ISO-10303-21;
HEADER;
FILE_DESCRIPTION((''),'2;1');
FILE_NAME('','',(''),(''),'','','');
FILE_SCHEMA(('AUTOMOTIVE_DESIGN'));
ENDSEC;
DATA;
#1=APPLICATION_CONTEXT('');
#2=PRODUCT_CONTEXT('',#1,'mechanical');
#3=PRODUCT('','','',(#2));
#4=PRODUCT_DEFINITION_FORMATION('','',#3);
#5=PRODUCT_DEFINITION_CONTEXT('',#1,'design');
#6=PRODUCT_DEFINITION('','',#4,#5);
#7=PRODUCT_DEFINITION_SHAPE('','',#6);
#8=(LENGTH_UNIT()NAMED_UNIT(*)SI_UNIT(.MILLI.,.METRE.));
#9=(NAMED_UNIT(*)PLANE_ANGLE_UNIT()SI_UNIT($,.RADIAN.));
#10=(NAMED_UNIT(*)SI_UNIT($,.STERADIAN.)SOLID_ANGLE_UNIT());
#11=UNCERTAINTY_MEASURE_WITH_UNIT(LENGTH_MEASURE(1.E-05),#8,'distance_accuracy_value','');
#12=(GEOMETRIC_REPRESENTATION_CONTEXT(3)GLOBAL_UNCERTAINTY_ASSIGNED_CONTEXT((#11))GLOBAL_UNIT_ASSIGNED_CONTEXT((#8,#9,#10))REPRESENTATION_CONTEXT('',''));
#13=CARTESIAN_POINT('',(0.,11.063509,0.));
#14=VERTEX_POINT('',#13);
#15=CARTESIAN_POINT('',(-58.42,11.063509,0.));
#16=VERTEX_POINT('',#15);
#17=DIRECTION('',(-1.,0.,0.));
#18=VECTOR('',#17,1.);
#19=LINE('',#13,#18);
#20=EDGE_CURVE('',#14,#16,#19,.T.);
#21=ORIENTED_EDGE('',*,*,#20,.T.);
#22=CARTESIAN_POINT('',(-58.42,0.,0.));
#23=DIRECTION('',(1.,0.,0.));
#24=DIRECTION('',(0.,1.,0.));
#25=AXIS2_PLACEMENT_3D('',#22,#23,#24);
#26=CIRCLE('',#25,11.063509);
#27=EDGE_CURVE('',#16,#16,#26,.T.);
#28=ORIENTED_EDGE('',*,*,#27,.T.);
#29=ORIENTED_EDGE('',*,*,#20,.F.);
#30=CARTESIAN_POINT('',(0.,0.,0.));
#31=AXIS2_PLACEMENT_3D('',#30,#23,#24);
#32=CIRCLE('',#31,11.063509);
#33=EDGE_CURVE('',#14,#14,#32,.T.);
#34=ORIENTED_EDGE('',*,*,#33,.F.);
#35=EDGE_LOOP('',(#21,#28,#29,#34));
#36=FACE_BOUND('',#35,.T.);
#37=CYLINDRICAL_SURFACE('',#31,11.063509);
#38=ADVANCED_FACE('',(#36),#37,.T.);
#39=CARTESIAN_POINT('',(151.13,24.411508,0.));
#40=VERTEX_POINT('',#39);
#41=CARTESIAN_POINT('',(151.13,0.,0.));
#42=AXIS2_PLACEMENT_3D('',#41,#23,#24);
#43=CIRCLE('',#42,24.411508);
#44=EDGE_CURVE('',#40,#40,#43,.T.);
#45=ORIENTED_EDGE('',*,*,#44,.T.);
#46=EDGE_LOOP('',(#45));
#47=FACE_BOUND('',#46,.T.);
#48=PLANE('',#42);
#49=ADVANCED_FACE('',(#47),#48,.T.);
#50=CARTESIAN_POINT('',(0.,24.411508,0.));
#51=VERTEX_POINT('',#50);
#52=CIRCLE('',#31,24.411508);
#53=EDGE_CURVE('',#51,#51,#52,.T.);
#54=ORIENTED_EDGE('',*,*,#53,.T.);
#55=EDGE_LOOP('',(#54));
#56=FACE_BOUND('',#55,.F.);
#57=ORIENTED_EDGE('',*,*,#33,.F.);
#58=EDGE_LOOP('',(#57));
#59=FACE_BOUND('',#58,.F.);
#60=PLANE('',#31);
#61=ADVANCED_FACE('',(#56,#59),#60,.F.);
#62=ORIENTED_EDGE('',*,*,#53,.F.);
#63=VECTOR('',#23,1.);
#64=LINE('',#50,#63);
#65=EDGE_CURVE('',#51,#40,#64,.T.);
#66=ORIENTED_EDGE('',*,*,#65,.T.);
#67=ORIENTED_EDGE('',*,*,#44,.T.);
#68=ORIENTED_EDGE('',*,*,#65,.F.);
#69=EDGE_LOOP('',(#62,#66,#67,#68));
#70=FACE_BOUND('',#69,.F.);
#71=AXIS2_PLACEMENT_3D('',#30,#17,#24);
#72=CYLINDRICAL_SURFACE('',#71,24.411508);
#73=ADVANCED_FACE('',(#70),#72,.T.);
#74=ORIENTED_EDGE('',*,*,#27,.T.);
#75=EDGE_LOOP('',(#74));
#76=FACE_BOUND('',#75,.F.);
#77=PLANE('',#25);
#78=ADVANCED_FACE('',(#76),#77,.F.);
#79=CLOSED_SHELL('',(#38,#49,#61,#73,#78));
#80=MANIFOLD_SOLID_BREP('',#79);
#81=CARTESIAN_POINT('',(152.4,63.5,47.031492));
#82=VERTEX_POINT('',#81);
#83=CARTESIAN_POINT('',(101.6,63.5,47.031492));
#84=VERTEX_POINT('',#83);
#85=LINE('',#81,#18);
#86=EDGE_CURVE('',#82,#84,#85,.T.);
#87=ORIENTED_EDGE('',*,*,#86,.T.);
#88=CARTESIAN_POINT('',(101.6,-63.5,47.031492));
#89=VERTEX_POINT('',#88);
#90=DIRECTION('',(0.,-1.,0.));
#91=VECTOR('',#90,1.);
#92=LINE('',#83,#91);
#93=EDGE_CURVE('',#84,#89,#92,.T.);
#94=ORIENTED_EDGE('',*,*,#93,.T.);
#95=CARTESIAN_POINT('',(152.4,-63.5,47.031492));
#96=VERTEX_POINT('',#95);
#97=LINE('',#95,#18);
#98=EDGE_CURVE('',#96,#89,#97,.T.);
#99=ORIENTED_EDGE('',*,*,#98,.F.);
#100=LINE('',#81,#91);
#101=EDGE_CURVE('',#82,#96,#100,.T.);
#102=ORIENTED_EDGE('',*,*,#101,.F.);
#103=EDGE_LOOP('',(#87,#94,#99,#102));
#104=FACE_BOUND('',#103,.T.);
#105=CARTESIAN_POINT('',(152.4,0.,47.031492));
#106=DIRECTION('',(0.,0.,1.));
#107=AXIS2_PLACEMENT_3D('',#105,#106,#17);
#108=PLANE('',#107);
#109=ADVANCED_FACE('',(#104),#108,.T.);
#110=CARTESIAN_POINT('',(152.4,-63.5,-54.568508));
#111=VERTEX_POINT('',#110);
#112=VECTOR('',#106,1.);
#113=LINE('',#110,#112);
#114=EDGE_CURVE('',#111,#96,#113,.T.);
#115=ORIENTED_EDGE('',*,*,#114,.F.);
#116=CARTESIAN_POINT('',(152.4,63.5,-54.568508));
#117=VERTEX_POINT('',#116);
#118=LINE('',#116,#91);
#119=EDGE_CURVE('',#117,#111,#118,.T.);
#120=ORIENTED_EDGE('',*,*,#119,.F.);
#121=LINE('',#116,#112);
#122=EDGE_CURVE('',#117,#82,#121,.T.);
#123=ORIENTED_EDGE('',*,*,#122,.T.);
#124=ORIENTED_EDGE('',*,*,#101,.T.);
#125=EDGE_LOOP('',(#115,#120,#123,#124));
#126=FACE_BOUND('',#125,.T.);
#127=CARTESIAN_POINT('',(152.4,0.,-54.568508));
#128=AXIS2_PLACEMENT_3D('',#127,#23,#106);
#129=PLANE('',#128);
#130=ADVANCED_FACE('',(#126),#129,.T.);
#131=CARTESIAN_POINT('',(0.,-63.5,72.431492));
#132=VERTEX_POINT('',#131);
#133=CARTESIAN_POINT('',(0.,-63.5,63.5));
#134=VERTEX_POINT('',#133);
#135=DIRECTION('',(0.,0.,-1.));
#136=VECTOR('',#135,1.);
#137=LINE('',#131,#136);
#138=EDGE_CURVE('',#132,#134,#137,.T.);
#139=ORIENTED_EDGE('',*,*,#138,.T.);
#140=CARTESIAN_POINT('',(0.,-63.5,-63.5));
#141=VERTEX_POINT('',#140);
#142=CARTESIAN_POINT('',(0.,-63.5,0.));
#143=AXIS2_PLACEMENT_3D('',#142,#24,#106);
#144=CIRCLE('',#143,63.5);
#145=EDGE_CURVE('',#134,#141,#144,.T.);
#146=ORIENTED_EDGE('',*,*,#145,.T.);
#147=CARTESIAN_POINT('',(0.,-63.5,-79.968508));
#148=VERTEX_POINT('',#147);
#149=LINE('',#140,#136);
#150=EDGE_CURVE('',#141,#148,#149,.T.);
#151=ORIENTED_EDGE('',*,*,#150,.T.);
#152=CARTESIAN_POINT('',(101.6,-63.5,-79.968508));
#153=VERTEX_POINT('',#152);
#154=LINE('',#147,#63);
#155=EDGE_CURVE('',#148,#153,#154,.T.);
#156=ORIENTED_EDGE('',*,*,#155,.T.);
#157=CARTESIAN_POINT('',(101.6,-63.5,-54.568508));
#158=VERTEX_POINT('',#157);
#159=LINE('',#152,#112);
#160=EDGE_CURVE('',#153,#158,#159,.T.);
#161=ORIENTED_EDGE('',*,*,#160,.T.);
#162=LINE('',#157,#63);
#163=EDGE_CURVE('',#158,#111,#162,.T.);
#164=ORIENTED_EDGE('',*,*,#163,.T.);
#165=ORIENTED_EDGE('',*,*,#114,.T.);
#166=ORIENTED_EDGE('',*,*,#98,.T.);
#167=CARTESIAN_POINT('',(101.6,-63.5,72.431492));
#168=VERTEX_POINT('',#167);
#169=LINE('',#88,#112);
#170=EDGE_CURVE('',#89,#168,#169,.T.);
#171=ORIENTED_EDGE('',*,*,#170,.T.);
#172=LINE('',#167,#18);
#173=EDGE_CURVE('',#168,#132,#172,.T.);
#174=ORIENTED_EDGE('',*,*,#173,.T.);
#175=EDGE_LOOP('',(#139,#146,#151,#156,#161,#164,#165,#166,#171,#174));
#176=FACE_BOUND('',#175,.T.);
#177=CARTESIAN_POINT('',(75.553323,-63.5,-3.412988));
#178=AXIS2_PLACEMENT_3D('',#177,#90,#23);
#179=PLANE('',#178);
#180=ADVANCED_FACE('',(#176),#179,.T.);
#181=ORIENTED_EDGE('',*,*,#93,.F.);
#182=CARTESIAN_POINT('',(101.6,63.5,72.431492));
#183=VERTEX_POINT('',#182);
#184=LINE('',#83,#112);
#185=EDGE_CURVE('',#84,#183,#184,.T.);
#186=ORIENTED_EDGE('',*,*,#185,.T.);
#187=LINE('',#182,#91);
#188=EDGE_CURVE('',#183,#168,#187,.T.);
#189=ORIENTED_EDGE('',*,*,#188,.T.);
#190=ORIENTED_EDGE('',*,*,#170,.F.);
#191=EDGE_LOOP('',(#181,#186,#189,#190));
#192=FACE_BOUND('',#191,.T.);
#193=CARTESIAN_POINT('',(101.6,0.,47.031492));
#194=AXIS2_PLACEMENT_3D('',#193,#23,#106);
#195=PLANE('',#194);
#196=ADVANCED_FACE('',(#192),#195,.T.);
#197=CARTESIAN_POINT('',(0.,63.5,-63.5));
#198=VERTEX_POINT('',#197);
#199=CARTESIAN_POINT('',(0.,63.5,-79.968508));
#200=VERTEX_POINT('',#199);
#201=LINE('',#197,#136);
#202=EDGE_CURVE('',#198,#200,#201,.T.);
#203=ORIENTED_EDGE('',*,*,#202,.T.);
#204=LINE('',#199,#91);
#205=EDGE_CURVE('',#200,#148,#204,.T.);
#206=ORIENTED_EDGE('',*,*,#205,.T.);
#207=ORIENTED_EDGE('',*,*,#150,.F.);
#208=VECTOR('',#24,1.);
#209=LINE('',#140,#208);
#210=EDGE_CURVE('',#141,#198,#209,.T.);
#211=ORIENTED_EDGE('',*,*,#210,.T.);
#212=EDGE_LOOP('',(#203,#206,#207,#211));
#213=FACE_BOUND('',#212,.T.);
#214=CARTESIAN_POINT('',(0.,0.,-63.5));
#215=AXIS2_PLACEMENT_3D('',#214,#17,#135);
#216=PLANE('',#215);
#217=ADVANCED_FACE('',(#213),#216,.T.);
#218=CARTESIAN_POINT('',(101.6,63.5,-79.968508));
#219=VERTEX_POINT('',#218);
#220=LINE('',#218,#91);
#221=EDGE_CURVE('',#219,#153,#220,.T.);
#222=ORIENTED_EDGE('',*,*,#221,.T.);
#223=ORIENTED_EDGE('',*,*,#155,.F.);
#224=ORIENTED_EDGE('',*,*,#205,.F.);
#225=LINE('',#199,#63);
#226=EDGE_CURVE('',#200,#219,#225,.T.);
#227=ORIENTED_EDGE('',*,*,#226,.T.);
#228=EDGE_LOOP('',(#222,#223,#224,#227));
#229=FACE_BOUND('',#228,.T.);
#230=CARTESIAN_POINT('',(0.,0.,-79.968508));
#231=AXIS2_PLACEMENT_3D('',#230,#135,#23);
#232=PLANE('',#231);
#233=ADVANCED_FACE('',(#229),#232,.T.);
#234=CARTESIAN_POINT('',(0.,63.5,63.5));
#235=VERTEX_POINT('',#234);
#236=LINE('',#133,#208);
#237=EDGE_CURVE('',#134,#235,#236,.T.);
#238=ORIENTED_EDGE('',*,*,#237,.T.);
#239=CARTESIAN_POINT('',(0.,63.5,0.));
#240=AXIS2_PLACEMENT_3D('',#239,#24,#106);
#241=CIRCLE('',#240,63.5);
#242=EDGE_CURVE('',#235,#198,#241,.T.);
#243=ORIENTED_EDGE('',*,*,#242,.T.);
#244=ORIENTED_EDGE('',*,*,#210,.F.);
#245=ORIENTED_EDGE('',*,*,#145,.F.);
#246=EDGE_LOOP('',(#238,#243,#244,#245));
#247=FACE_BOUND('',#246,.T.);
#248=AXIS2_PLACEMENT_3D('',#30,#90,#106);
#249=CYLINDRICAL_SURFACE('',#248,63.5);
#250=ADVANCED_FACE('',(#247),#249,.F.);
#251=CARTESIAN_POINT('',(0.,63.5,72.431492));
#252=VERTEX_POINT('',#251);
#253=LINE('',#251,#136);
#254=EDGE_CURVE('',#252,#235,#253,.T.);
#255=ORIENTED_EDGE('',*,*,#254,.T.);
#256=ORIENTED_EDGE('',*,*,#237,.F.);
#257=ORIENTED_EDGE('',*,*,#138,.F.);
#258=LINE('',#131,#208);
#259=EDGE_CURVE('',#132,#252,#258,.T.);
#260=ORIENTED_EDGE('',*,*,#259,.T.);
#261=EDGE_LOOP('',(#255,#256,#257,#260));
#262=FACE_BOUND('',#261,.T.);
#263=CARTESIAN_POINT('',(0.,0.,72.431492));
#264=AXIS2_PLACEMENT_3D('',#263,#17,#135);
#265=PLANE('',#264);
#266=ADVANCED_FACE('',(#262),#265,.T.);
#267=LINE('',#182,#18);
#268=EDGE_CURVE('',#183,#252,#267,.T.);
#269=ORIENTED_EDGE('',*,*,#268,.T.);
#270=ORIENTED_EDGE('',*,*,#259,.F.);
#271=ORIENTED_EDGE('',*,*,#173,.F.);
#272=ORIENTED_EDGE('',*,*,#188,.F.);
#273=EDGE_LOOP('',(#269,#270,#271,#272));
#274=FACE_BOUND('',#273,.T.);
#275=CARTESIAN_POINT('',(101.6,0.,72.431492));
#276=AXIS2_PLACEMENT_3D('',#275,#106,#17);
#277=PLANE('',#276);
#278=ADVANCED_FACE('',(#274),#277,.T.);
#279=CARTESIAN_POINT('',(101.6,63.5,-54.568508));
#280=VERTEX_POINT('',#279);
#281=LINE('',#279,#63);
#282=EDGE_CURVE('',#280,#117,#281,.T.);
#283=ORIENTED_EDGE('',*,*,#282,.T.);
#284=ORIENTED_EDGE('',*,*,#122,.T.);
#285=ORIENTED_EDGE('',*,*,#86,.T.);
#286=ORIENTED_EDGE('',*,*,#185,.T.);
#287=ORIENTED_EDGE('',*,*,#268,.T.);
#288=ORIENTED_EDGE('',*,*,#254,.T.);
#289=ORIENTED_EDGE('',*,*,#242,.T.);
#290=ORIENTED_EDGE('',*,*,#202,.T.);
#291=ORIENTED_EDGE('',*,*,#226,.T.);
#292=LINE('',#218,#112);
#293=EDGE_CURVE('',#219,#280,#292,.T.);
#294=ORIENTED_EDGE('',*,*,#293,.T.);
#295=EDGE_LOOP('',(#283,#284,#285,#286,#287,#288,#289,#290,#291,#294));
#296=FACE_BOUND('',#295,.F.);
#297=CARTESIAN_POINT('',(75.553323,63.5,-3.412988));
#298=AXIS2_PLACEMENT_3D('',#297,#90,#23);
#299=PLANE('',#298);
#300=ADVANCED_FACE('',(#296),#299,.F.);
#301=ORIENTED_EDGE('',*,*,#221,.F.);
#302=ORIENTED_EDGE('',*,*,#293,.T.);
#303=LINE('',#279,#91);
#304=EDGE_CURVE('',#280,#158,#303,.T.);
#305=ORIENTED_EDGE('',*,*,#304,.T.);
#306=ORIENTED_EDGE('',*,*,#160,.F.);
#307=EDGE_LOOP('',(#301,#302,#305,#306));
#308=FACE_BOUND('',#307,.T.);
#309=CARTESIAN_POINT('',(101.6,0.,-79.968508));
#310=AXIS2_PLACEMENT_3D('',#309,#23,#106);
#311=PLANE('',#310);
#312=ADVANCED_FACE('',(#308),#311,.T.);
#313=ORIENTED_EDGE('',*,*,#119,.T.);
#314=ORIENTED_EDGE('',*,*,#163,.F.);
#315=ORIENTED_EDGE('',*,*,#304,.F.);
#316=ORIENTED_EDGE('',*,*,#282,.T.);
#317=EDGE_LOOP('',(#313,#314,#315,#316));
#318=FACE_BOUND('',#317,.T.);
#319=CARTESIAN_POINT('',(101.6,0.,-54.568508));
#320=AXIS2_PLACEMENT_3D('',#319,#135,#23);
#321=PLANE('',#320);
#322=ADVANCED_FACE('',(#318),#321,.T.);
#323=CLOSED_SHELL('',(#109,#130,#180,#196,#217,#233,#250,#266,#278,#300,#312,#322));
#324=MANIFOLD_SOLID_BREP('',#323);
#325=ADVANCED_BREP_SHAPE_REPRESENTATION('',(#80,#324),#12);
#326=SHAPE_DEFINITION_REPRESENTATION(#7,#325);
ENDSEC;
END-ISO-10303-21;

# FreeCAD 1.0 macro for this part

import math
import FreeCAD as App
import Part
import Sketcher

V = App.Vector
Q = App.Units.Quantity

doc = App.newDocument("Part")
params = doc.addObject("Spreadsheet::Sheet", "Params")
for row, (alias, value) in enumerate([
    ("sketch1_radius", "2.5 in"),
    ("sketch1_width", "4 in"),
    ("sketch1_width2", "2 in"),
    ("sketch1_height", "1 in"),
    ("pad1_length", "5 in"),
    ("pad2_length", "5.95 in"),
    ("pad3_length", "2.3 in"),
], start=1):
    params.set(f"A{row}", alias)
    params.set(f"B{row}", "=" + value)
    params.setAlias(f"B{row}", alias)

body = doc.addObject("PartDesign::Body", "Body")

# Sketch on XZ plane
sketch1 = doc.addObject("Sketcher::SketchObject", "Sketch")
body.addObject(sketch1)
sketch1.AttachmentSupport = (doc.XZ_Plane, [""])
sketch1.MapMode = "FlatFace"
sketch1.addGeometry([
    Part.LineSegment(V(0, -64, 0), V(0, -80, 0)),  # 0
    Part.LineSegment(V(0, -80, 0), V(102, -80, 0)),  # 1
    Part.LineSegment(V(102, -80, 0), V(102, -55, 0)),  # 2
    Part.LineSegment(V(102, -55, 0), V(152, -55, 0)),  # 3
    Part.LineSegment(V(152, -55, 0), V(152, 47, 0)),  # 4
    Part.LineSegment(V(152, 47, 0), V(102, 47, 0)),  # 5
    Part.LineSegment(V(102, 47, 0), V(102, 72, 0)),  # 6
    Part.LineSegment(V(102, 72, 0), V(0, 72, 0)),  # 7
    Part.LineSegment(V(0, 72, 0), V(0, 64, 0)),  # 8
    Part.ArcOfCircle(Part.Circle(V(0, 0, 0), V(0, 0, 1), 64), math.radians(-90), math.radians(90)),  # 9
], False)
sketch1.addConstraint([
    Sketcher.Constraint("Coincident", 0, 2, 1, 1),
    Sketcher.Constraint("Coincident", 1, 2, 2, 1),
    Sketcher.Constraint("Coincident", 2, 2, 3, 1),
    Sketcher.Constraint("Coincident", 3, 2, 4, 1),
    Sketcher.Constraint("Coincident", 4, 2, 5, 1),
    Sketcher.Constraint("Coincident", 5, 2, 6, 1),
    Sketcher.Constraint("Coincident", 6, 2, 7, 1),
    Sketcher.Constraint("Coincident", 7, 2, 8, 1),
    Sketcher.Constraint("Coincident", 8, 2, 9, 2),
    Sketcher.Constraint("Coincident", 9, 1, 0, 1),
    Sketcher.Constraint("Vertical", 0),
    Sketcher.Constraint("Horizontal", 1),
    Sketcher.Constraint("Vertical", 2),
    Sketcher.Constraint("Horizontal", 3),
    Sketcher.Constraint("Vertical", 4),
    Sketcher.Constraint("Horizontal", 5),
    Sketcher.Constraint("Vertical", 6),
    Sketcher.Constraint("Horizontal", 7),
    Sketcher.Constraint("Vertical", 8),
    Sketcher.Constraint("Coincident", 9, 3, -1, 1),
    Sketcher.Constraint("PointOnObject", 0, 2, -2),
    Sketcher.Constraint("PointOnObject", 7, 2, -2),
    Sketcher.Constraint("Vertical", 2, 2, 5, 2),
    Sketcher.Constraint("Equal", 7, 4),
    Sketcher.Constraint("Equal", 2, 6),
    Sketcher.Constraint("Radius", 9, Q("2.5 in")),
    Sketcher.Constraint("DistanceX", 1, 1, 1, 2, Q("4 in")),
    Sketcher.Constraint("DistanceX", 3, 1, 3, 2, Q("2 in")),
    Sketcher.Constraint("DistanceY", 2, 1, 2, 2, Q("1 in")),
    Sketcher.Constraint("DistanceY", 0, 2, 0, 1, 16.468508),
])
sketch1.setExpression("Constraints[25]", "Params.sketch1_radius")
sketch1.setExpression("Constraints[26]", "Params.sketch1_width")
sketch1.setExpression("Constraints[27]", "Params.sketch1_width2")
sketch1.setExpression("Constraints[28]", "Params.sketch1_height")
pad1 = doc.addObject("PartDesign::Pad", "Pad")
body.addObject(pad1)
pad1.Profile = sketch1
pad1.setExpression("Length", "Params.pad1_length")
pad1.Midplane = True
body2 = doc.addObject("PartDesign::Body", "Body001")

# Sketch on YZ plane
sketch2 = doc.addObject("Sketcher::SketchObject", "Sketch001")
body2.addObject(sketch2)
sketch2.AttachmentSupport = (doc.getObject("YZ_Plane001"), [""])
sketch2.MapMode = "FlatFace"
sketch2.addGeometry(Part.Circle(V(0, 0, 0), V(0, 0, 1), 24), False)
sketch2.addConstraint([
    Sketcher.Constraint("Coincident", 0, 3, -1, 1),
    Sketcher.Constraint("Diameter", 0, 48.823017),
])
pad2 = doc.addObject("PartDesign::Pad", "Pad001")
body2.addObject(pad2)
pad2.Profile = sketch2
pad2.setExpression("Length", "Params.pad2_length")

# Sketch on YZ plane
sketch3 = doc.addObject("Sketcher::SketchObject", "Sketch002")
body2.addObject(sketch3)
sketch3.AttachmentSupport = (doc.getObject("YZ_Plane001"), [""])
sketch3.MapMode = "FlatFace"
sketch3.addGeometry(Part.Circle(V(0, 0, 0), V(0, 0, 1), 11), False)
sketch3.addConstraint([
    Sketcher.Constraint("Coincident", 0, 3, -1, 1),
    Sketcher.Constraint("Diameter", 0, 22.127019),
])
pad3 = doc.addObject("PartDesign::Pad", "Pad002")
body2.addObject(pad3)
pad3.Profile = sketch3
pad3.setExpression("Length", "Params.pad3_length")
pad3.Reversed = True

doc.recompute()
